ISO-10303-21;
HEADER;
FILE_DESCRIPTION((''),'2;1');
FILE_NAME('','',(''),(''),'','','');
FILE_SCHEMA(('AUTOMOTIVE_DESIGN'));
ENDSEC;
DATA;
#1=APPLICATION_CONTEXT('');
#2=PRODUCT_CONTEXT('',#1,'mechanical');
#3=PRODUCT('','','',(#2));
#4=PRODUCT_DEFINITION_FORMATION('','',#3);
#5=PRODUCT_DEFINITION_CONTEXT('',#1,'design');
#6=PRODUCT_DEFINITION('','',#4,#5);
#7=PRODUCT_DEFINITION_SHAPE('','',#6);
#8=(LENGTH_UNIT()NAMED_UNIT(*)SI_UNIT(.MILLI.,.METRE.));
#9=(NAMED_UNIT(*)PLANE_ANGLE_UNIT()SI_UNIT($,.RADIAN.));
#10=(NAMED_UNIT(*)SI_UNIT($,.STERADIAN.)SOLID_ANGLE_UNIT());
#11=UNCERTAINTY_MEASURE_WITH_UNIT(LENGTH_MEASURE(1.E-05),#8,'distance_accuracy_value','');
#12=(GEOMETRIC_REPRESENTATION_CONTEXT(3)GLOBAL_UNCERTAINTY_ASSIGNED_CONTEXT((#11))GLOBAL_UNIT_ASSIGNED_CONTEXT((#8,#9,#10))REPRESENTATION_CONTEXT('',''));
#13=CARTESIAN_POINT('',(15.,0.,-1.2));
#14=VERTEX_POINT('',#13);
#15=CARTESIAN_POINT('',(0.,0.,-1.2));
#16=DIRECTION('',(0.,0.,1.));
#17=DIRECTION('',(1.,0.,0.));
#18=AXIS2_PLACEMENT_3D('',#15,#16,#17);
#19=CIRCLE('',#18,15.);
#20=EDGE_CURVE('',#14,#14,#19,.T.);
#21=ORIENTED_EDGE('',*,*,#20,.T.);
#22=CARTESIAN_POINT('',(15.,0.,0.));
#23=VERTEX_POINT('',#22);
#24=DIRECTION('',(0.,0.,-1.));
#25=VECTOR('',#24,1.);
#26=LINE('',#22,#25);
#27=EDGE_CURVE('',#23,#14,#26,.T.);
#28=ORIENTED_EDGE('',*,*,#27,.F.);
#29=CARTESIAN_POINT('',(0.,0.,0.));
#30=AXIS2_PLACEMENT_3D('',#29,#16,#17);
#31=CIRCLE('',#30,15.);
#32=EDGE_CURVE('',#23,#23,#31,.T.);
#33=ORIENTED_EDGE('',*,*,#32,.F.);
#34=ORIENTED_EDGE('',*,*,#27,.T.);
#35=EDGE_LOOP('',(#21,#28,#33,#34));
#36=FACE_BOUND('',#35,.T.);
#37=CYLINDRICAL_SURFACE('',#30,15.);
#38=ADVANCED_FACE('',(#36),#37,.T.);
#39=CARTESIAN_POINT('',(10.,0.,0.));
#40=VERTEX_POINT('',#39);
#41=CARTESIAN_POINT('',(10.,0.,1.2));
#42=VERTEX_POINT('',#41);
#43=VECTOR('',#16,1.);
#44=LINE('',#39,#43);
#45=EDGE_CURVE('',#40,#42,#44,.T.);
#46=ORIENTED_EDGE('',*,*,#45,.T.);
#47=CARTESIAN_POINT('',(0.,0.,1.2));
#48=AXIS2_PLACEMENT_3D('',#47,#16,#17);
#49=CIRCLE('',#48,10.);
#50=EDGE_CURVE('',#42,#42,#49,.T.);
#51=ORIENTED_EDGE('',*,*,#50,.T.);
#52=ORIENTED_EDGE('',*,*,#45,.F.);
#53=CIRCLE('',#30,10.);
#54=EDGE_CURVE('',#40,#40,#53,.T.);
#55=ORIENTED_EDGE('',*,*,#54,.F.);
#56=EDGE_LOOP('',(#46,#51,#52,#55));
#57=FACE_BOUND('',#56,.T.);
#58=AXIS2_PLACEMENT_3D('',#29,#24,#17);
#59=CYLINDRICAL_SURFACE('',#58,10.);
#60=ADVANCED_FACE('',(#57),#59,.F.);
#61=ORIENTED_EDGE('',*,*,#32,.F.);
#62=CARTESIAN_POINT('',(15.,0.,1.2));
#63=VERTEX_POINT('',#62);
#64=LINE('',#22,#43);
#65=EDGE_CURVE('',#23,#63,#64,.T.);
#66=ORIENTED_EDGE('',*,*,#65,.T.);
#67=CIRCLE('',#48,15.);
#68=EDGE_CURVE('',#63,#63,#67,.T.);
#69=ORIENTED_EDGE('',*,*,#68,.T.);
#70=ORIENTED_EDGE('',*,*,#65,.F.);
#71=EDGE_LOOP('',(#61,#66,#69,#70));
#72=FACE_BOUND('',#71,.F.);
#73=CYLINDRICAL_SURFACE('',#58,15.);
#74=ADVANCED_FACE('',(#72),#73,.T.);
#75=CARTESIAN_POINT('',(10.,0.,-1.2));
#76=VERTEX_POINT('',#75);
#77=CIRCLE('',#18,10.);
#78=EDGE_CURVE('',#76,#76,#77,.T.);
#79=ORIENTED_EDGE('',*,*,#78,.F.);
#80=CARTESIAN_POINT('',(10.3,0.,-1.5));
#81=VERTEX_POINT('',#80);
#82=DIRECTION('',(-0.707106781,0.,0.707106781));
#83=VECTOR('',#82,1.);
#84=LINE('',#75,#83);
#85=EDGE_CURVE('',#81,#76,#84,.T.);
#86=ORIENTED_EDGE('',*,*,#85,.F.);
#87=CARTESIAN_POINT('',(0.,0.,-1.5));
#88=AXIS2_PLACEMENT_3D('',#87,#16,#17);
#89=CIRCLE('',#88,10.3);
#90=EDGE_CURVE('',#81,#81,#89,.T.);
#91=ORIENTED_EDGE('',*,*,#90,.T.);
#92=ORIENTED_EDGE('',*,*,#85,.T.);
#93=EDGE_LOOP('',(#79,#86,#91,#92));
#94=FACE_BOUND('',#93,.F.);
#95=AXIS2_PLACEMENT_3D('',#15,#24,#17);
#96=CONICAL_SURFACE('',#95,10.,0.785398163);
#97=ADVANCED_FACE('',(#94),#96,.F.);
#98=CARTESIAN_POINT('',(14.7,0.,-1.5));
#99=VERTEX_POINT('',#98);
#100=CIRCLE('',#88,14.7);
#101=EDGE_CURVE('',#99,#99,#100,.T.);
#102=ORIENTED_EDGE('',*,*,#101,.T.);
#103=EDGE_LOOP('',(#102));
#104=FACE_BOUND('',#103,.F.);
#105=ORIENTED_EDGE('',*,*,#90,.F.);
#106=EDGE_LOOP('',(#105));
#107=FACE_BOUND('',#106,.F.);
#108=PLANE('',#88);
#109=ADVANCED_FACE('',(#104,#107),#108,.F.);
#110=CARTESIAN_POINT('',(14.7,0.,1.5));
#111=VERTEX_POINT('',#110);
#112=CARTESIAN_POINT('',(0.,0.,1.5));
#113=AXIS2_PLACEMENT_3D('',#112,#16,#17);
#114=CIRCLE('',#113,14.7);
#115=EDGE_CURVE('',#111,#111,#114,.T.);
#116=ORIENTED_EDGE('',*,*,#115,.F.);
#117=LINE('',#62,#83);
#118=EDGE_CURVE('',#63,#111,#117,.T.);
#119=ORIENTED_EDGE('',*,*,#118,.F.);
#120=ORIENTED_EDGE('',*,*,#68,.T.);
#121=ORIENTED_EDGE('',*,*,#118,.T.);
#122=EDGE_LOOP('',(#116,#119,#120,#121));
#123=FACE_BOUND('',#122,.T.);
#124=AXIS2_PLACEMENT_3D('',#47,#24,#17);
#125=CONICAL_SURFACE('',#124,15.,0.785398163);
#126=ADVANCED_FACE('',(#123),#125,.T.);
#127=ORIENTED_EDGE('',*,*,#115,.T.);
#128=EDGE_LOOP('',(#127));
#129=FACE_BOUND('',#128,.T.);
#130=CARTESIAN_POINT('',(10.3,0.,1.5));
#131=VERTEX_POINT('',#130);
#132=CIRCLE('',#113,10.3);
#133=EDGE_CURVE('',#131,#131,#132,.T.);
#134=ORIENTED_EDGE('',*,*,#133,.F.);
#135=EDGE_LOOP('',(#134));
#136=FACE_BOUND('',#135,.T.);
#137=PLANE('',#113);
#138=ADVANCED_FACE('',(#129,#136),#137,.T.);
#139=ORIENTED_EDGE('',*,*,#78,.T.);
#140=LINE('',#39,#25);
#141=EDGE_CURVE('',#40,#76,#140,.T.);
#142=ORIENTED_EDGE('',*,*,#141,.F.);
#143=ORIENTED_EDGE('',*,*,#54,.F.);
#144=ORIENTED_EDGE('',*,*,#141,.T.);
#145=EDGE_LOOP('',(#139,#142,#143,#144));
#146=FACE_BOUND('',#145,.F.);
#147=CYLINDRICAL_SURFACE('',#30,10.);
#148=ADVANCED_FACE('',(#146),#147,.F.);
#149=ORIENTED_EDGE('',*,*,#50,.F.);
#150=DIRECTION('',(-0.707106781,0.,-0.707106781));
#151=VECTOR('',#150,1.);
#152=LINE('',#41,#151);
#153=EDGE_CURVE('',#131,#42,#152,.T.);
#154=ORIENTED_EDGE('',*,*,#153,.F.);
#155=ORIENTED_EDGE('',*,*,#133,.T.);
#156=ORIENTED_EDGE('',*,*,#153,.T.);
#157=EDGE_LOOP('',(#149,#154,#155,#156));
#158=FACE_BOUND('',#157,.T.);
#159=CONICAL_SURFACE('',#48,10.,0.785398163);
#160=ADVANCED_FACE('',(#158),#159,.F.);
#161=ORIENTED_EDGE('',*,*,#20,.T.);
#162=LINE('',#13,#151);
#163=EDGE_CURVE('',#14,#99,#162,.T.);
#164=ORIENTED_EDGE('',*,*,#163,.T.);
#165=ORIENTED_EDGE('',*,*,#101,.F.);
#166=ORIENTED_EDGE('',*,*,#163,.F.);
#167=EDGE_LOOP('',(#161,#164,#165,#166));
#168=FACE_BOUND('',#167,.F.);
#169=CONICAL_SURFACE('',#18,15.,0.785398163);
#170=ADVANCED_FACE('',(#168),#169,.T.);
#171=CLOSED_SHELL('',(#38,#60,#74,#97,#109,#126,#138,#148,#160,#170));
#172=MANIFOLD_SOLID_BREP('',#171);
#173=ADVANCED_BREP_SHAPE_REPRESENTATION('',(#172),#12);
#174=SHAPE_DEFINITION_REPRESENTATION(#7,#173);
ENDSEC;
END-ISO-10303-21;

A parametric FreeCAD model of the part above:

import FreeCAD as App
import Part
import Sketcher
Q = App.Units.Quantity


def edges_at(feature, points):
    """Names of the edges that pass closest to the given points."""
    edges = feature.Shape.Edges
    near = lambda p: min(range(len(edges)), key=lambda i: edges[i].distToShape(Part.Vertex(*p))[0])
    return sorted({f"Edge{near(p) + 1}" for p in points})

doc = App.newDocument("Part")
body = doc.addObject("PartDesign::Body", "Body")

sketch1 = doc.addObject("Sketcher::SketchObject", "Sketch")
body.addObject(sketch1)
sketch1.AttachmentSupport = (doc.XY_Plane, [""])
sketch1.MapMode = "FlatFace"
sketch1.addGeometry(Part.Circle(App.Vector(0, 0, 0), App.Vector(0, 0, 1), 15), False)
sketch1.addGeometry(Part.Circle(App.Vector(0, 0, 0), App.Vector(0, 0, 1), 10), False)
sketch1.addConstraint(Sketcher.Constraint("Coincident", 0, 3, -1, 1))
sketch1.addConstraint(Sketcher.Constraint("Coincident", 1, 3, -1, 1))
sketch1.addConstraint(Sketcher.Constraint("Diameter", 0, Q("30 mm")))
sketch1.addConstraint(Sketcher.Constraint("Diameter", 1, Q("20 mm")))
pad1 = doc.addObject("PartDesign::Pad", "Pad")
body.addObject(pad1)
pad1.Profile = sketch1
pad1.Length = 3
pad1.Midplane = True
doc.recompute()

chamfer = doc.addObject("PartDesign::Chamfer", "Chamfer")
body.addObject(chamfer)
chamfer.Base = (pad1, edges_at(pad1, [
    (-10, 0, 1.5),
    (-15, 0, 1.5),
    (-10, 0, -1.5),
    (-15, 0, -1.5),
]))
chamfer.Size = 0.3

doc.recompute()
